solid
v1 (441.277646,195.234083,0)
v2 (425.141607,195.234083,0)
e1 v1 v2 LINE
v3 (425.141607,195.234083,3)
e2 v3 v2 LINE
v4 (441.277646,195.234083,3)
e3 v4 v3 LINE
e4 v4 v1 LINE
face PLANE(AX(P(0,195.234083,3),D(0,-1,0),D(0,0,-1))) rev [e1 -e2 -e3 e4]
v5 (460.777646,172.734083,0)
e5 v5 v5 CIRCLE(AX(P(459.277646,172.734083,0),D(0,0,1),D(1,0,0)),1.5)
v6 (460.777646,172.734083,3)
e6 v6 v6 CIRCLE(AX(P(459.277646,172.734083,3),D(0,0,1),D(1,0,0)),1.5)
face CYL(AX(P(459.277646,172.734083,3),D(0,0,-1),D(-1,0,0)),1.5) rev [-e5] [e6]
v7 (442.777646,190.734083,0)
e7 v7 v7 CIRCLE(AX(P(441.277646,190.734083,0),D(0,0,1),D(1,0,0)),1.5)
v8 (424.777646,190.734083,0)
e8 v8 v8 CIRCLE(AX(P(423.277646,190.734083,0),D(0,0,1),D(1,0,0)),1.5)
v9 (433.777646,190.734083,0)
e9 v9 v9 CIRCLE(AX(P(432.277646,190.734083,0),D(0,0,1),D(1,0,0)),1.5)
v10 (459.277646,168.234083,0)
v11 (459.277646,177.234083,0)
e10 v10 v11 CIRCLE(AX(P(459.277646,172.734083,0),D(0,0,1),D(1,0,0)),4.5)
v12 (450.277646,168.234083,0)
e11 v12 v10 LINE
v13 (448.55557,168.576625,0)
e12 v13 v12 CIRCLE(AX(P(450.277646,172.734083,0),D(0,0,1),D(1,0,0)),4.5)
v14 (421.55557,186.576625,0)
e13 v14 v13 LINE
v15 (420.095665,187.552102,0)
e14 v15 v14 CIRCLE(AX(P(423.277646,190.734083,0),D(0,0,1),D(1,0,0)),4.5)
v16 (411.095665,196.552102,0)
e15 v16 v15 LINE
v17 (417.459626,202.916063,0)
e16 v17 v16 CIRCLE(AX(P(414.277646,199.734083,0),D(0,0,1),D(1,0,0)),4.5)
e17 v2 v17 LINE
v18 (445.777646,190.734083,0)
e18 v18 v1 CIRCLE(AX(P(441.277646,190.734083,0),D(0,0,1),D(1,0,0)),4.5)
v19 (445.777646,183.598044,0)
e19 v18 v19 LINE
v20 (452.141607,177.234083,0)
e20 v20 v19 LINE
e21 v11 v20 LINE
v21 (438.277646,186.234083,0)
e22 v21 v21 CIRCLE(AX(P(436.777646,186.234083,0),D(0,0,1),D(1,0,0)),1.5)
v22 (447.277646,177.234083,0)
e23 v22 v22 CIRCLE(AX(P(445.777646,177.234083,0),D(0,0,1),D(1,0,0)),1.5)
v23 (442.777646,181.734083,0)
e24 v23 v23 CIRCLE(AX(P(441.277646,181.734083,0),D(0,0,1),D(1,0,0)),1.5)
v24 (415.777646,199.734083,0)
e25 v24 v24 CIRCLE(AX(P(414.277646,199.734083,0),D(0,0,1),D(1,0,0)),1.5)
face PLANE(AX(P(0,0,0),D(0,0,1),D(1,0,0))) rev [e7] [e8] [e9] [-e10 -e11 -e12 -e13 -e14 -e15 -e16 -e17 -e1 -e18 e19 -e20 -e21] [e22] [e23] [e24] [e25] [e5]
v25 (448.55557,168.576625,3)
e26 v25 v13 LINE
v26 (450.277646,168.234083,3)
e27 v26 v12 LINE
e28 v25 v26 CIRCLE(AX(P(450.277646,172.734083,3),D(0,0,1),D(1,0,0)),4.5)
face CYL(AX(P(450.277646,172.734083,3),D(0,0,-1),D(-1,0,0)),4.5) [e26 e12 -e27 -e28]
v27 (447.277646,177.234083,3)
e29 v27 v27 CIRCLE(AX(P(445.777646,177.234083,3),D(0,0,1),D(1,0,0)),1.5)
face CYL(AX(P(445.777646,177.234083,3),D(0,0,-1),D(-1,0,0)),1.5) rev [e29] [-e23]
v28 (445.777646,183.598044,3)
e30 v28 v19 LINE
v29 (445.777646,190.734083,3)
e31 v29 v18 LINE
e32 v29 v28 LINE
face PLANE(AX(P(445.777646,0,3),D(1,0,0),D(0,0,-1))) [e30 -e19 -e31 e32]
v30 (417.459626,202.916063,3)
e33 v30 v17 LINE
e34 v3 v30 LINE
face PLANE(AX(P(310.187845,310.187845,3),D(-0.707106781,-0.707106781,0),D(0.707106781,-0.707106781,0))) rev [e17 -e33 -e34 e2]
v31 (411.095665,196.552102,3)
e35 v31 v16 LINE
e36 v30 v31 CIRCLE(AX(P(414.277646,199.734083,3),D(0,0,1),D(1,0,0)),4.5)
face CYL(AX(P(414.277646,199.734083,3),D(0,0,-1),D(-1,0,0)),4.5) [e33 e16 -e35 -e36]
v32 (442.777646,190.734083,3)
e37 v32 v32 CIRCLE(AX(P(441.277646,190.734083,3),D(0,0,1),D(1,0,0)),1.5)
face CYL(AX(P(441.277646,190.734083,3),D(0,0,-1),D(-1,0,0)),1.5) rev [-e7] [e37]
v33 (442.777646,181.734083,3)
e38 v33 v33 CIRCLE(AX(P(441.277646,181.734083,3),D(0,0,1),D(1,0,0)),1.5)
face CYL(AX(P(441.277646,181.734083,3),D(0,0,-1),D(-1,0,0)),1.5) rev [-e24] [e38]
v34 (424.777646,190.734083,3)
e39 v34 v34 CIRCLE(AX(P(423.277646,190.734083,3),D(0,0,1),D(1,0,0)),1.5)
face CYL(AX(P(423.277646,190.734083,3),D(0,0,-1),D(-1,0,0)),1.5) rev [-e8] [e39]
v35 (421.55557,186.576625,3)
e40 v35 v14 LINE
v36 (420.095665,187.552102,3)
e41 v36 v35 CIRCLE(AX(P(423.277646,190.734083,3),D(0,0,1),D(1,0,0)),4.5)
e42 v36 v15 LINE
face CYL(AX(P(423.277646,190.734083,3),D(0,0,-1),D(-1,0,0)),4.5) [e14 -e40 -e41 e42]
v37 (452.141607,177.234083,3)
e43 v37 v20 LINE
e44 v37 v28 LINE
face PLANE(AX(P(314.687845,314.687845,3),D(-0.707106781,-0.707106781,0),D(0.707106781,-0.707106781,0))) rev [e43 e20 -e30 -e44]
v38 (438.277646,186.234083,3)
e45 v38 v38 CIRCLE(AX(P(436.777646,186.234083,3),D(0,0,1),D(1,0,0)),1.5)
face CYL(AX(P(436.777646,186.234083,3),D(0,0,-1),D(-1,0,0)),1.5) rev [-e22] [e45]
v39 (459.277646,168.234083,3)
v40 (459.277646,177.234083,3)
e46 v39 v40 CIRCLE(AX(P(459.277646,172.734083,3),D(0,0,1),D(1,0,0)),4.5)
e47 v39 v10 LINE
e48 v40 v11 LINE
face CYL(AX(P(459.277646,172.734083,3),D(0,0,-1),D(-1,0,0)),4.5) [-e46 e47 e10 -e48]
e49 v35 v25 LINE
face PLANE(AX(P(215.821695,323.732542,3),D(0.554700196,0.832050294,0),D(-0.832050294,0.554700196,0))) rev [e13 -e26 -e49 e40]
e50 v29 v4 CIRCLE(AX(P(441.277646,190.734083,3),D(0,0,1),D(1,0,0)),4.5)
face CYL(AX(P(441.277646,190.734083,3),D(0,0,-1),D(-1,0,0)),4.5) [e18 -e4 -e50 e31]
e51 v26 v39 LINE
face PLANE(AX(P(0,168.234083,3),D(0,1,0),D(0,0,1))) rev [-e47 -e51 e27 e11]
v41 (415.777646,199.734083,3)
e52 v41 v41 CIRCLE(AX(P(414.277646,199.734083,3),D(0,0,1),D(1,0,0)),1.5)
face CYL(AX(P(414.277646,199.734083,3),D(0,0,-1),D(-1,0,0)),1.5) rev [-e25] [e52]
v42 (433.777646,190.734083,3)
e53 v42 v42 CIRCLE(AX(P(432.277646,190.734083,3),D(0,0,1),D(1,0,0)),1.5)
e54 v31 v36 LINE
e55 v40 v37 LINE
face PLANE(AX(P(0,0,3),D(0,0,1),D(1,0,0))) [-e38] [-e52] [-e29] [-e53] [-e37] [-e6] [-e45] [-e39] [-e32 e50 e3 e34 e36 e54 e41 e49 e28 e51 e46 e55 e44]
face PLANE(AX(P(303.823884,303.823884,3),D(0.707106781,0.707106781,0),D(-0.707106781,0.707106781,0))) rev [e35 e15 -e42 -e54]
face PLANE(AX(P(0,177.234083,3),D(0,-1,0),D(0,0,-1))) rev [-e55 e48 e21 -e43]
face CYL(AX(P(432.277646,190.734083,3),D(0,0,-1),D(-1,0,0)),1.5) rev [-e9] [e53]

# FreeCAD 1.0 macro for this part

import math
import FreeCAD as App
import Part
import Sketcher
from FreeCAD import Vector
Q = App.Units.Quantity

doc = App.newDocument("Part")
body = doc.addObject("PartDesign::Body", "Body")

# Sketch on XY plane
sketch1 = body.newObject("Sketcher::SketchObject", "Sketch")
sketch1.AttachmentSupport = (doc.getObject("XY_Plane"), [""])
sketch1.MapMode = "FlatFace"
sketch1.addGeometry([
    Part.LineSegment(Vector(421.55557, 186.576625, 0), Vector(448.55557, 168.576625, 0)),  # 0
    Part.ArcOfCircle(Part.Circle(Vector(450.277646, 172.734083, 0), Vector(0, 0, 1), 4.5), math.radians(-112.5), math.radians(-90)),  # 1
    Part.LineSegment(Vector(450.277646, 168.234083, 0), Vector(459.277646, 168.234083, 0)),  # 2
    Part.ArcOfCircle(Part.Circle(Vector(459.277646, 172.734083, 0), Vector(0, 0, 1), 4.5), math.radians(-90), math.radians(90)),  # 3
    Part.LineSegment(Vector(459.277646, 177.234083, 0), Vector(452.141607, 177.234083, 0)),  # 4
    Part.LineSegment(Vector(452.141607, 177.234083, 0), Vector(445.777646, 183.598044, 0)),  # 5
    Part.LineSegment(Vector(445.777646, 183.598044, 0), Vector(445.777646, 190.734083, 0)),  # 6
    Part.ArcOfCircle(Part.Circle(Vector(441.277646, 190.734083, 0), Vector(0, 0, 1), 4.5), math.radians(0), math.radians(90)),  # 7
    Part.LineSegment(Vector(441.277646, 195.234083, 0), Vector(425.141607, 195.234083, 0)),  # 8
    Part.LineSegment(Vector(425.141607, 195.234083, 0), Vector(417.459626, 202.916063, 0)),  # 9
    Part.ArcOfCircle(Part.Circle(Vector(414.277646, 199.734083, 0), Vector(0, 0, 1), 4.5), math.radians(45), math.radians(225)),  # 10
    Part.LineSegment(Vector(411.095665, 196.552102, 0), Vector(420.095665, 187.552102, 0)),  # 11
    Part.ArcOfCircle(Part.Circle(Vector(423.277646, 190.734083, 0), Vector(0, 0, 1), 4.5), math.radians(-135), math.radians(-112.5)),  # 12
    Part.Circle(Vector(445.777646, 177.234083, 0), Vector(0, 0, 1), 1.5),  # 13
    Part.Circle(Vector(459.277646, 172.734083, 0), Vector(0, 0, 1), 1.5),  # 14
    Part.Circle(Vector(441.277646, 181.734083, 0), Vector(0, 0, 1), 1.5),  # 15
    Part.Circle(Vector(423.277646, 190.734083, 0), Vector(0, 0, 1), 1.5),  # 16
    Part.Circle(Vector(432.277646, 190.734083, 0), Vector(0, 0, 1), 1.5),  # 17
    Part.Circle(Vector(414.277646, 199.734083, 0), Vector(0, 0, 1), 1.5),  # 18
    Part.Circle(Vector(436.777646, 186.234083, 0), Vector(0, 0, 1), 1.5),  # 19
    Part.Circle(Vector(441.277646, 190.734083, 0), Vector(0, 0, 1), 1.5),  # 20
], False)
sketch1.addConstraint([
    Sketcher.Constraint("Coincident", 0, 2, 1, 1),
    Sketcher.Constraint("Tangent", 1, 2, 2, 1),
    Sketcher.Constraint("Tangent", 2, 2, 3, 1),
    Sketcher.Constraint("Tangent", 3, 2, 4, 1),
    Sketcher.Constraint("Coincident", 4, 2, 5, 1),
    Sketcher.Constraint("Coincident", 5, 2, 6, 1),
    Sketcher.Constraint("Tangent", 6, 2, 7, 1),
    Sketcher.Constraint("Tangent", 7, 2, 8, 1),
    Sketcher.Constraint("Coincident", 8, 2, 9, 1),
    Sketcher.Constraint("Tangent", 9, 2, 10, 1),
    Sketcher.Constraint("Tangent", 10, 2, 11, 1),
    Sketcher.Constraint("Tangent", 11, 2, 12, 1),
    Sketcher.Constraint("Coincident", 12, 2, 0, 1),
    Sketcher.Constraint("Horizontal", 2),
    Sketcher.Constraint("Horizontal", 4),
    Sketcher.Constraint("Vertical", 6),
    Sketcher.Constraint("Horizontal", 8),
    Sketcher.Constraint("Coincident", 14, 3, 3, 3),
    Sketcher.Constraint("Coincident", 16, 3, 12, 3),
    Sketcher.Constraint("Coincident", 18, 3, 10, 3),
    Sketcher.Constraint("Coincident", 20, 3, 7, 3),
    Sketcher.Constraint("Equal", 1, 3),
    Sketcher.Constraint("Equal", 3, 7),
    Sketcher.Constraint("Equal", 7, 10),
    Sketcher.Constraint("Equal", 10, 12),
    Sketcher.Constraint("Equal", 13, 14),
    Sketcher.Constraint("Equal", 14, 15),
    Sketcher.Constraint("Equal", 15, 16),
    Sketcher.Constraint("Equal", 16, 17),
    Sketcher.Constraint("Equal", 17, 18),
    Sketcher.Constraint("Equal", 18, 19),
    Sketcher.Constraint("Equal", 19, 20),
    Sketcher.Constraint("Parallel", 5, 9),
    Sketcher.Constraint("Parallel", 9, 11),
    Sketcher.Constraint("Horizontal", 7, 3, 12, 3),
    Sketcher.Constraint("Horizontal", 16, 3, 17, 3),
    Sketcher.Constraint("Horizontal", 13, 3, 3, 2),
    Sketcher.Constraint("Vertical", 7, 3, 15, 3),
    Sketcher.Constraint("Vertical", 13, 3, 5, 2),
    Sketcher.Constraint("Equal", 4, 6),
    Sketcher.Constraint("Diameter", 13, 3.0),
    Sketcher.Constraint("Radius", 1, 4.5),
    Sketcher.Constraint("DistanceX", 2, 1, 2, 2, 9.0),
    Sketcher.Constraint("Angle", 5, Q("135 deg")),
    Sketcher.Constraint("Distance", 5, 9.0),
    Sketcher.Constraint("DistanceX", 7, 3, 1, 3, 9.0),
    Sketcher.Constraint("DistanceX", 10, 3, 7, 3, 27.0),
    Sketcher.Constraint("DistanceY", 7, 3, 10, 3, 9.0),
    Sketcher.Constraint("DistanceY", 15, 3, 7, 3, 9.0),
    Sketcher.Constraint("DistanceX", 12, 3, 17, 3, 9.0),
    Sketcher.Constraint("DistanceX", 19, 3, 13, 3, 9.0),
    Sketcher.Constraint("DistanceY", 13, 3, 19, 3, 9.0),
    Sketcher.Constraint("Distance", 0, 32.449961),
    Sketcher.Constraint("DistanceX", -1, 1, 0, 2, 448.55557),
    Sketcher.Constraint("DistanceX", -1, 1, 1, 3, 450.277646),
    Sketcher.Constraint("DistanceY", -1, 1, 1, 3, 172.734083),
])
pad1 = body.newObject("PartDesign::Pad", "Pad")
pad1.Profile = sketch1
pad1.Length = 3

doc.recompute()
